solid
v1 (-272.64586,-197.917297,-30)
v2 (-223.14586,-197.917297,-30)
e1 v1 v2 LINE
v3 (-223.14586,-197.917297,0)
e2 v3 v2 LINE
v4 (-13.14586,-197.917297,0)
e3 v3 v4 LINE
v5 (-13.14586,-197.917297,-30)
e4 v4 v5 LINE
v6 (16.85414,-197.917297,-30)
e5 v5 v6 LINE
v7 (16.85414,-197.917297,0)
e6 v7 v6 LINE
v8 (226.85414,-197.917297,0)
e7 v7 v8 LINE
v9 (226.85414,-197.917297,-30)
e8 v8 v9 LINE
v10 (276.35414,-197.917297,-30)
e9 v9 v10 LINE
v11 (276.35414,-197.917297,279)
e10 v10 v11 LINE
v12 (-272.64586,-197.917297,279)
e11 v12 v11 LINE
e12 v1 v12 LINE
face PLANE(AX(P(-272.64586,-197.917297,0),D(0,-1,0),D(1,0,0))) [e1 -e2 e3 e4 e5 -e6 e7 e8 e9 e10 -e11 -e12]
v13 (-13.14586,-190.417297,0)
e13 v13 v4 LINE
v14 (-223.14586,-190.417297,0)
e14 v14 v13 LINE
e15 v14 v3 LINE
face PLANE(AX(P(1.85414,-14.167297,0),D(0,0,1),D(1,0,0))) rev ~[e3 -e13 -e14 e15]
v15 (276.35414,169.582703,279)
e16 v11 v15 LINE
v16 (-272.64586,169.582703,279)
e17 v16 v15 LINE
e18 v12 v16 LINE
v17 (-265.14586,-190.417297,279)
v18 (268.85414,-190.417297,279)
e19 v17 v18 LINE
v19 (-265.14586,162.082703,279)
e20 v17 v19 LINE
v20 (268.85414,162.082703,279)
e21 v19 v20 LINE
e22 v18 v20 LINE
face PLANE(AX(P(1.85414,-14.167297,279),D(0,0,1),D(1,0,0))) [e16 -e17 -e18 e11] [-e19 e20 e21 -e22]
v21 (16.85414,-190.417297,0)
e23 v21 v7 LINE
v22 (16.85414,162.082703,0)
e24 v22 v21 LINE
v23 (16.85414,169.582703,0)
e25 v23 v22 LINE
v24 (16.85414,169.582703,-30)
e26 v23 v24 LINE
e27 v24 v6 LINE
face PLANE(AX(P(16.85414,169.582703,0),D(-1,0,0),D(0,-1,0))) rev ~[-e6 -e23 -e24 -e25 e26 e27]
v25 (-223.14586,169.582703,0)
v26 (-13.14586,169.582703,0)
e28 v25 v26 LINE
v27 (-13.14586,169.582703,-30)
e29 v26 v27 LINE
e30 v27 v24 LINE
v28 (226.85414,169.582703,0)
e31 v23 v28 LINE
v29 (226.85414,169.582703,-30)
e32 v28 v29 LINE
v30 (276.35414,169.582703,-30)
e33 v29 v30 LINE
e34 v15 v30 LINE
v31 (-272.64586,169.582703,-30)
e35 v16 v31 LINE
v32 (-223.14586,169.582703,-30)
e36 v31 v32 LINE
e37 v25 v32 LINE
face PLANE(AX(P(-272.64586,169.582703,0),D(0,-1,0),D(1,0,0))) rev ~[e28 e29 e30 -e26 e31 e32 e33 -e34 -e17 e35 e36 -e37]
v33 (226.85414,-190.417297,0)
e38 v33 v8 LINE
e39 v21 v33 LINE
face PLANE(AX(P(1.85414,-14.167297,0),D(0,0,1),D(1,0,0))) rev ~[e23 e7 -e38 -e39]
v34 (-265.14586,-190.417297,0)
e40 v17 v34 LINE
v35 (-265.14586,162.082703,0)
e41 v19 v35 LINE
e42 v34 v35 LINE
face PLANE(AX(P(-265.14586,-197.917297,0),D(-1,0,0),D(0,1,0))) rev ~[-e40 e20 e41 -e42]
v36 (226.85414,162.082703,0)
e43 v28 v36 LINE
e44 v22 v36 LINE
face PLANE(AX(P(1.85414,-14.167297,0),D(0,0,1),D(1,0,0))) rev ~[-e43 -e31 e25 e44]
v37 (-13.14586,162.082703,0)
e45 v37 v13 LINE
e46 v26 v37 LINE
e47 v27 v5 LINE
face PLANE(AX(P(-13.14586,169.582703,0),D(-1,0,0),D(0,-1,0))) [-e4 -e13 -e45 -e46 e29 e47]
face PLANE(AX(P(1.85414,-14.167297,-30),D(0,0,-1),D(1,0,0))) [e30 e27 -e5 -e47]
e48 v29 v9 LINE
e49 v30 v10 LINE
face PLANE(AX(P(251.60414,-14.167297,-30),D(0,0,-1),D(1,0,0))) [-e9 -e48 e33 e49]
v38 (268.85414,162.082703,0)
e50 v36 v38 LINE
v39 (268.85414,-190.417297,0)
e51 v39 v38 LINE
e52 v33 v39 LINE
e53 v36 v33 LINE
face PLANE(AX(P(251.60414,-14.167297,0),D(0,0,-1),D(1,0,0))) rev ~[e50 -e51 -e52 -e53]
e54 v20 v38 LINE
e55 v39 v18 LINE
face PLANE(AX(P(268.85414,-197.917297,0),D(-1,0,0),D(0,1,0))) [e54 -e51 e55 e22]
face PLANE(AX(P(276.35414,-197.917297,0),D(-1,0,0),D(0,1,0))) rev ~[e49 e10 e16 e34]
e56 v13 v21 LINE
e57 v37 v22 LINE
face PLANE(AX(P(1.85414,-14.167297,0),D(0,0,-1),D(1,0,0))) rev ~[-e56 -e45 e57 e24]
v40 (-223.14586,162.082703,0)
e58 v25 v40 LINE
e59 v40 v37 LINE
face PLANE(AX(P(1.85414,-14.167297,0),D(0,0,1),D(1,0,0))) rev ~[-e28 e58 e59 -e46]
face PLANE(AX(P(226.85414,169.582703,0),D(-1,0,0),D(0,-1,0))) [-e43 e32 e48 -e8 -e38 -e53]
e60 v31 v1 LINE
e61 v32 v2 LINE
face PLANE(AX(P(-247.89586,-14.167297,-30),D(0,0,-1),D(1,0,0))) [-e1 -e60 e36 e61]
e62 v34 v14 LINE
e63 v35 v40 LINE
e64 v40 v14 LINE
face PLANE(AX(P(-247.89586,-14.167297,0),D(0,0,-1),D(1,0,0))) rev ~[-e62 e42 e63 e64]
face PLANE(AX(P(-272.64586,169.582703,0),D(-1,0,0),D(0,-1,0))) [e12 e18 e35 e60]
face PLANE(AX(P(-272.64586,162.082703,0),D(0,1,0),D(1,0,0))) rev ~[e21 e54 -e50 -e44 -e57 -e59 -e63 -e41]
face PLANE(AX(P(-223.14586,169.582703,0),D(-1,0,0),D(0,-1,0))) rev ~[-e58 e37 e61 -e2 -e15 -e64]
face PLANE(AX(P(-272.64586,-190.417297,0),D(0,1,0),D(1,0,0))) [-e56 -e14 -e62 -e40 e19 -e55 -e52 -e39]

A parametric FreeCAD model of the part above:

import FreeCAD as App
import Part
import Sketcher
Q = App.Units.Quantity


def faces_at(feature, points):
    """Names of the faces that lie closest to the given points."""
    faces = feature.Shape.Faces
    near = lambda p: min(range(len(faces)), key=lambda i: faces[i].distToShape(Part.Vertex(*p))[0])
    return sorted({f"Face{near(p) + 1}" for p in points})

doc = App.newDocument("Part")
body = doc.addObject("PartDesign::Body", "Body")

sketch1 = body.newObject("Sketcher::SketchObject", "Sketch")
sketch1.AttachmentSupport = (doc.getObject("XY_Plane"), [""])
sketch1.MapMode = "FlatFace"
sketch1.addGeometry([
    Part.LineSegment(App.Vector(-273, 170, 0), App.Vector(-273, -198, 0)),
    Part.LineSegment(App.Vector(-273, -198, 0), App.Vector(276, -198, 0)),
    Part.LineSegment(App.Vector(276, -198, 0), App.Vector(276, 170, 0)),
    Part.LineSegment(App.Vector(276, 170, 0), App.Vector(-273, 170, 0)),
], False)
sketch1.addConstraint([
    Sketcher.Constraint("Coincident", 0, 2, 1, 1),
    Sketcher.Constraint("Coincident", 1, 2, 2, 1),
    Sketcher.Constraint("Coincident", 2, 2, 3, 1),
    Sketcher.Constraint("Coincident", 3, 2, 0, 1),
    Sketcher.Constraint("Vertical", 0),
    Sketcher.Constraint("Horizontal", 1),
    Sketcher.Constraint("Vertical", 2),
    Sketcher.Constraint("Horizontal", 3),
    Sketcher.Constraint("DistanceX", 1, 1, 1, 2, Q("549 mm")),
    Sketcher.Constraint("DistanceY", 0, 2, 0, 1, Q("367.5 mm")),
    Sketcher.Constraint("DistanceX", 0, 2, -1, 1, Q("272.64586 mm")),
    Sketcher.Constraint("DistanceY", 0, 2, -1, 1, Q("197.917297 mm")),
])
pad1 = body.newObject("PartDesign::Pad", "Pad")
pad1.Profile = sketch1
pad1.Length = 279
doc.recompute()

thickness = body.newObject("PartDesign::Thickness", "Thickness")
thickness.Base = (pad1, faces_at(pad1, [(1.854, -14.167, 279), (1.854, -14.167, 0)]))
thickness.Value = 7.5
thickness.Reversed = True
thickness.Join = "Arc"

sketch2 = body.newObject("Sketcher::SketchObject", "Sketch001")
sketch2.AttachmentSupport = (doc.getObject("XY_Plane"), [""])
sketch2.MapMode = "FlatFace"
sketch2.addGeometry([
    Part.LineSegment(App.Vector(-273, -198, 0), App.Vector(-273, 170, 0)),
    Part.LineSegment(App.Vector(-273, 170, 0), App.Vector(-223, 170, 0)),
    Part.LineSegment(App.Vector(-223, 170, 0), App.Vector(-223, -198, 0)),
    Part.LineSegment(App.Vector(-223, -198, 0), App.Vector(-273, -198, 0)),
    Part.LineSegment(App.Vector(-13, -198, 0), App.Vector(-13, 170, 0)),
    Part.LineSegment(App.Vector(-13, 170, 0), App.Vector(17, 170, 0)),
    Part.LineSegment(App.Vector(17, 170, 0), App.Vector(17, -198, 0)),
    Part.LineSegment(App.Vector(17, -198, 0), App.Vector(-13, -198, 0)),
    Part.LineSegment(App.Vector(227, -198, 0), App.Vector(227, 170, 0)),
    Part.LineSegment(App.Vector(227, 170, 0), App.Vector(276, 170, 0)),
    Part.LineSegment(App.Vector(276, 170, 0), App.Vector(276, -198, 0)),
    Part.LineSegment(App.Vector(276, -198, 0), App.Vector(227, -198, 0)),
], False)
sketch2.addConstraint([
    Sketcher.Constraint("Coincident", 0, 2, 1, 1),
    Sketcher.Constraint("Coincident", 1, 2, 2, 1),
    Sketcher.Constraint("Coincident", 2, 2, 3, 1),
    Sketcher.Constraint("Coincident", 3, 2, 0, 1),
    Sketcher.Constraint("Coincident", 4, 2, 5, 1),
    Sketcher.Constraint("Coincident", 5, 2, 6, 1),
    Sketcher.Constraint("Coincident", 6, 2, 7, 1),
    Sketcher.Constraint("Coincident", 7, 2, 4, 1),
    Sketcher.Constraint("Coincident", 8, 2, 9, 1),
    Sketcher.Constraint("Coincident", 9, 2, 10, 1),
    Sketcher.Constraint("Coincident", 10, 2, 11, 1),
    Sketcher.Constraint("Coincident", 11, 2, 8, 1),
    Sketcher.Constraint("Vertical", 0),
    Sketcher.Constraint("Horizontal", 1),
    Sketcher.Constraint("Vertical", 2),
    Sketcher.Constraint("Horizontal", 3),
    Sketcher.Constraint("Vertical", 4),
    Sketcher.Constraint("Horizontal", 5),
    Sketcher.Constraint("Vertical", 6),
    Sketcher.Constraint("Horizontal", 7),
    Sketcher.Constraint("Vertical", 8),
    Sketcher.Constraint("Horizontal", 9),
    Sketcher.Constraint("Vertical", 10),
    Sketcher.Constraint("Horizontal", 11),
    Sketcher.Constraint("Horizontal", 1, 2, 4, 2),
    Sketcher.Constraint("Horizontal", 3, 2, 6, 2),
    Sketcher.Constraint("Horizontal", 5, 2, 8, 2),
    Sketcher.Constraint("Horizontal", 7, 2, 10, 2),
    Sketcher.Constraint("Equal", 3, 9),
    Sketcher.Constraint("DistanceX", 5, 1, 5, 2, Q("30 mm")),
    Sketcher.Constraint("DistanceX", 1, 1, 1, 2, Q("49.5 mm")),
    Sketcher.Constraint("DistanceY", 0, 1, 0, 2, Q("367.5 mm")),
    Sketcher.Constraint("DistanceX", 1, 2, 4, 2, Q("210 mm")),
    Sketcher.Constraint("DistanceX", 5, 2, 8, 2, Q("210 mm")),
    Sketcher.Constraint("DistanceX", 0, 2, -1, 1, Q("272.64586 mm")),
    Sketcher.Constraint("DistanceY", -1, 1, 0, 2, Q("169.582703 mm")),
])
pad2 = body.newObject("PartDesign::Pad", "Pad001")
pad2.Profile = sketch2
pad2.Length = 30
pad2.Reversed = True

doc.recompute()
